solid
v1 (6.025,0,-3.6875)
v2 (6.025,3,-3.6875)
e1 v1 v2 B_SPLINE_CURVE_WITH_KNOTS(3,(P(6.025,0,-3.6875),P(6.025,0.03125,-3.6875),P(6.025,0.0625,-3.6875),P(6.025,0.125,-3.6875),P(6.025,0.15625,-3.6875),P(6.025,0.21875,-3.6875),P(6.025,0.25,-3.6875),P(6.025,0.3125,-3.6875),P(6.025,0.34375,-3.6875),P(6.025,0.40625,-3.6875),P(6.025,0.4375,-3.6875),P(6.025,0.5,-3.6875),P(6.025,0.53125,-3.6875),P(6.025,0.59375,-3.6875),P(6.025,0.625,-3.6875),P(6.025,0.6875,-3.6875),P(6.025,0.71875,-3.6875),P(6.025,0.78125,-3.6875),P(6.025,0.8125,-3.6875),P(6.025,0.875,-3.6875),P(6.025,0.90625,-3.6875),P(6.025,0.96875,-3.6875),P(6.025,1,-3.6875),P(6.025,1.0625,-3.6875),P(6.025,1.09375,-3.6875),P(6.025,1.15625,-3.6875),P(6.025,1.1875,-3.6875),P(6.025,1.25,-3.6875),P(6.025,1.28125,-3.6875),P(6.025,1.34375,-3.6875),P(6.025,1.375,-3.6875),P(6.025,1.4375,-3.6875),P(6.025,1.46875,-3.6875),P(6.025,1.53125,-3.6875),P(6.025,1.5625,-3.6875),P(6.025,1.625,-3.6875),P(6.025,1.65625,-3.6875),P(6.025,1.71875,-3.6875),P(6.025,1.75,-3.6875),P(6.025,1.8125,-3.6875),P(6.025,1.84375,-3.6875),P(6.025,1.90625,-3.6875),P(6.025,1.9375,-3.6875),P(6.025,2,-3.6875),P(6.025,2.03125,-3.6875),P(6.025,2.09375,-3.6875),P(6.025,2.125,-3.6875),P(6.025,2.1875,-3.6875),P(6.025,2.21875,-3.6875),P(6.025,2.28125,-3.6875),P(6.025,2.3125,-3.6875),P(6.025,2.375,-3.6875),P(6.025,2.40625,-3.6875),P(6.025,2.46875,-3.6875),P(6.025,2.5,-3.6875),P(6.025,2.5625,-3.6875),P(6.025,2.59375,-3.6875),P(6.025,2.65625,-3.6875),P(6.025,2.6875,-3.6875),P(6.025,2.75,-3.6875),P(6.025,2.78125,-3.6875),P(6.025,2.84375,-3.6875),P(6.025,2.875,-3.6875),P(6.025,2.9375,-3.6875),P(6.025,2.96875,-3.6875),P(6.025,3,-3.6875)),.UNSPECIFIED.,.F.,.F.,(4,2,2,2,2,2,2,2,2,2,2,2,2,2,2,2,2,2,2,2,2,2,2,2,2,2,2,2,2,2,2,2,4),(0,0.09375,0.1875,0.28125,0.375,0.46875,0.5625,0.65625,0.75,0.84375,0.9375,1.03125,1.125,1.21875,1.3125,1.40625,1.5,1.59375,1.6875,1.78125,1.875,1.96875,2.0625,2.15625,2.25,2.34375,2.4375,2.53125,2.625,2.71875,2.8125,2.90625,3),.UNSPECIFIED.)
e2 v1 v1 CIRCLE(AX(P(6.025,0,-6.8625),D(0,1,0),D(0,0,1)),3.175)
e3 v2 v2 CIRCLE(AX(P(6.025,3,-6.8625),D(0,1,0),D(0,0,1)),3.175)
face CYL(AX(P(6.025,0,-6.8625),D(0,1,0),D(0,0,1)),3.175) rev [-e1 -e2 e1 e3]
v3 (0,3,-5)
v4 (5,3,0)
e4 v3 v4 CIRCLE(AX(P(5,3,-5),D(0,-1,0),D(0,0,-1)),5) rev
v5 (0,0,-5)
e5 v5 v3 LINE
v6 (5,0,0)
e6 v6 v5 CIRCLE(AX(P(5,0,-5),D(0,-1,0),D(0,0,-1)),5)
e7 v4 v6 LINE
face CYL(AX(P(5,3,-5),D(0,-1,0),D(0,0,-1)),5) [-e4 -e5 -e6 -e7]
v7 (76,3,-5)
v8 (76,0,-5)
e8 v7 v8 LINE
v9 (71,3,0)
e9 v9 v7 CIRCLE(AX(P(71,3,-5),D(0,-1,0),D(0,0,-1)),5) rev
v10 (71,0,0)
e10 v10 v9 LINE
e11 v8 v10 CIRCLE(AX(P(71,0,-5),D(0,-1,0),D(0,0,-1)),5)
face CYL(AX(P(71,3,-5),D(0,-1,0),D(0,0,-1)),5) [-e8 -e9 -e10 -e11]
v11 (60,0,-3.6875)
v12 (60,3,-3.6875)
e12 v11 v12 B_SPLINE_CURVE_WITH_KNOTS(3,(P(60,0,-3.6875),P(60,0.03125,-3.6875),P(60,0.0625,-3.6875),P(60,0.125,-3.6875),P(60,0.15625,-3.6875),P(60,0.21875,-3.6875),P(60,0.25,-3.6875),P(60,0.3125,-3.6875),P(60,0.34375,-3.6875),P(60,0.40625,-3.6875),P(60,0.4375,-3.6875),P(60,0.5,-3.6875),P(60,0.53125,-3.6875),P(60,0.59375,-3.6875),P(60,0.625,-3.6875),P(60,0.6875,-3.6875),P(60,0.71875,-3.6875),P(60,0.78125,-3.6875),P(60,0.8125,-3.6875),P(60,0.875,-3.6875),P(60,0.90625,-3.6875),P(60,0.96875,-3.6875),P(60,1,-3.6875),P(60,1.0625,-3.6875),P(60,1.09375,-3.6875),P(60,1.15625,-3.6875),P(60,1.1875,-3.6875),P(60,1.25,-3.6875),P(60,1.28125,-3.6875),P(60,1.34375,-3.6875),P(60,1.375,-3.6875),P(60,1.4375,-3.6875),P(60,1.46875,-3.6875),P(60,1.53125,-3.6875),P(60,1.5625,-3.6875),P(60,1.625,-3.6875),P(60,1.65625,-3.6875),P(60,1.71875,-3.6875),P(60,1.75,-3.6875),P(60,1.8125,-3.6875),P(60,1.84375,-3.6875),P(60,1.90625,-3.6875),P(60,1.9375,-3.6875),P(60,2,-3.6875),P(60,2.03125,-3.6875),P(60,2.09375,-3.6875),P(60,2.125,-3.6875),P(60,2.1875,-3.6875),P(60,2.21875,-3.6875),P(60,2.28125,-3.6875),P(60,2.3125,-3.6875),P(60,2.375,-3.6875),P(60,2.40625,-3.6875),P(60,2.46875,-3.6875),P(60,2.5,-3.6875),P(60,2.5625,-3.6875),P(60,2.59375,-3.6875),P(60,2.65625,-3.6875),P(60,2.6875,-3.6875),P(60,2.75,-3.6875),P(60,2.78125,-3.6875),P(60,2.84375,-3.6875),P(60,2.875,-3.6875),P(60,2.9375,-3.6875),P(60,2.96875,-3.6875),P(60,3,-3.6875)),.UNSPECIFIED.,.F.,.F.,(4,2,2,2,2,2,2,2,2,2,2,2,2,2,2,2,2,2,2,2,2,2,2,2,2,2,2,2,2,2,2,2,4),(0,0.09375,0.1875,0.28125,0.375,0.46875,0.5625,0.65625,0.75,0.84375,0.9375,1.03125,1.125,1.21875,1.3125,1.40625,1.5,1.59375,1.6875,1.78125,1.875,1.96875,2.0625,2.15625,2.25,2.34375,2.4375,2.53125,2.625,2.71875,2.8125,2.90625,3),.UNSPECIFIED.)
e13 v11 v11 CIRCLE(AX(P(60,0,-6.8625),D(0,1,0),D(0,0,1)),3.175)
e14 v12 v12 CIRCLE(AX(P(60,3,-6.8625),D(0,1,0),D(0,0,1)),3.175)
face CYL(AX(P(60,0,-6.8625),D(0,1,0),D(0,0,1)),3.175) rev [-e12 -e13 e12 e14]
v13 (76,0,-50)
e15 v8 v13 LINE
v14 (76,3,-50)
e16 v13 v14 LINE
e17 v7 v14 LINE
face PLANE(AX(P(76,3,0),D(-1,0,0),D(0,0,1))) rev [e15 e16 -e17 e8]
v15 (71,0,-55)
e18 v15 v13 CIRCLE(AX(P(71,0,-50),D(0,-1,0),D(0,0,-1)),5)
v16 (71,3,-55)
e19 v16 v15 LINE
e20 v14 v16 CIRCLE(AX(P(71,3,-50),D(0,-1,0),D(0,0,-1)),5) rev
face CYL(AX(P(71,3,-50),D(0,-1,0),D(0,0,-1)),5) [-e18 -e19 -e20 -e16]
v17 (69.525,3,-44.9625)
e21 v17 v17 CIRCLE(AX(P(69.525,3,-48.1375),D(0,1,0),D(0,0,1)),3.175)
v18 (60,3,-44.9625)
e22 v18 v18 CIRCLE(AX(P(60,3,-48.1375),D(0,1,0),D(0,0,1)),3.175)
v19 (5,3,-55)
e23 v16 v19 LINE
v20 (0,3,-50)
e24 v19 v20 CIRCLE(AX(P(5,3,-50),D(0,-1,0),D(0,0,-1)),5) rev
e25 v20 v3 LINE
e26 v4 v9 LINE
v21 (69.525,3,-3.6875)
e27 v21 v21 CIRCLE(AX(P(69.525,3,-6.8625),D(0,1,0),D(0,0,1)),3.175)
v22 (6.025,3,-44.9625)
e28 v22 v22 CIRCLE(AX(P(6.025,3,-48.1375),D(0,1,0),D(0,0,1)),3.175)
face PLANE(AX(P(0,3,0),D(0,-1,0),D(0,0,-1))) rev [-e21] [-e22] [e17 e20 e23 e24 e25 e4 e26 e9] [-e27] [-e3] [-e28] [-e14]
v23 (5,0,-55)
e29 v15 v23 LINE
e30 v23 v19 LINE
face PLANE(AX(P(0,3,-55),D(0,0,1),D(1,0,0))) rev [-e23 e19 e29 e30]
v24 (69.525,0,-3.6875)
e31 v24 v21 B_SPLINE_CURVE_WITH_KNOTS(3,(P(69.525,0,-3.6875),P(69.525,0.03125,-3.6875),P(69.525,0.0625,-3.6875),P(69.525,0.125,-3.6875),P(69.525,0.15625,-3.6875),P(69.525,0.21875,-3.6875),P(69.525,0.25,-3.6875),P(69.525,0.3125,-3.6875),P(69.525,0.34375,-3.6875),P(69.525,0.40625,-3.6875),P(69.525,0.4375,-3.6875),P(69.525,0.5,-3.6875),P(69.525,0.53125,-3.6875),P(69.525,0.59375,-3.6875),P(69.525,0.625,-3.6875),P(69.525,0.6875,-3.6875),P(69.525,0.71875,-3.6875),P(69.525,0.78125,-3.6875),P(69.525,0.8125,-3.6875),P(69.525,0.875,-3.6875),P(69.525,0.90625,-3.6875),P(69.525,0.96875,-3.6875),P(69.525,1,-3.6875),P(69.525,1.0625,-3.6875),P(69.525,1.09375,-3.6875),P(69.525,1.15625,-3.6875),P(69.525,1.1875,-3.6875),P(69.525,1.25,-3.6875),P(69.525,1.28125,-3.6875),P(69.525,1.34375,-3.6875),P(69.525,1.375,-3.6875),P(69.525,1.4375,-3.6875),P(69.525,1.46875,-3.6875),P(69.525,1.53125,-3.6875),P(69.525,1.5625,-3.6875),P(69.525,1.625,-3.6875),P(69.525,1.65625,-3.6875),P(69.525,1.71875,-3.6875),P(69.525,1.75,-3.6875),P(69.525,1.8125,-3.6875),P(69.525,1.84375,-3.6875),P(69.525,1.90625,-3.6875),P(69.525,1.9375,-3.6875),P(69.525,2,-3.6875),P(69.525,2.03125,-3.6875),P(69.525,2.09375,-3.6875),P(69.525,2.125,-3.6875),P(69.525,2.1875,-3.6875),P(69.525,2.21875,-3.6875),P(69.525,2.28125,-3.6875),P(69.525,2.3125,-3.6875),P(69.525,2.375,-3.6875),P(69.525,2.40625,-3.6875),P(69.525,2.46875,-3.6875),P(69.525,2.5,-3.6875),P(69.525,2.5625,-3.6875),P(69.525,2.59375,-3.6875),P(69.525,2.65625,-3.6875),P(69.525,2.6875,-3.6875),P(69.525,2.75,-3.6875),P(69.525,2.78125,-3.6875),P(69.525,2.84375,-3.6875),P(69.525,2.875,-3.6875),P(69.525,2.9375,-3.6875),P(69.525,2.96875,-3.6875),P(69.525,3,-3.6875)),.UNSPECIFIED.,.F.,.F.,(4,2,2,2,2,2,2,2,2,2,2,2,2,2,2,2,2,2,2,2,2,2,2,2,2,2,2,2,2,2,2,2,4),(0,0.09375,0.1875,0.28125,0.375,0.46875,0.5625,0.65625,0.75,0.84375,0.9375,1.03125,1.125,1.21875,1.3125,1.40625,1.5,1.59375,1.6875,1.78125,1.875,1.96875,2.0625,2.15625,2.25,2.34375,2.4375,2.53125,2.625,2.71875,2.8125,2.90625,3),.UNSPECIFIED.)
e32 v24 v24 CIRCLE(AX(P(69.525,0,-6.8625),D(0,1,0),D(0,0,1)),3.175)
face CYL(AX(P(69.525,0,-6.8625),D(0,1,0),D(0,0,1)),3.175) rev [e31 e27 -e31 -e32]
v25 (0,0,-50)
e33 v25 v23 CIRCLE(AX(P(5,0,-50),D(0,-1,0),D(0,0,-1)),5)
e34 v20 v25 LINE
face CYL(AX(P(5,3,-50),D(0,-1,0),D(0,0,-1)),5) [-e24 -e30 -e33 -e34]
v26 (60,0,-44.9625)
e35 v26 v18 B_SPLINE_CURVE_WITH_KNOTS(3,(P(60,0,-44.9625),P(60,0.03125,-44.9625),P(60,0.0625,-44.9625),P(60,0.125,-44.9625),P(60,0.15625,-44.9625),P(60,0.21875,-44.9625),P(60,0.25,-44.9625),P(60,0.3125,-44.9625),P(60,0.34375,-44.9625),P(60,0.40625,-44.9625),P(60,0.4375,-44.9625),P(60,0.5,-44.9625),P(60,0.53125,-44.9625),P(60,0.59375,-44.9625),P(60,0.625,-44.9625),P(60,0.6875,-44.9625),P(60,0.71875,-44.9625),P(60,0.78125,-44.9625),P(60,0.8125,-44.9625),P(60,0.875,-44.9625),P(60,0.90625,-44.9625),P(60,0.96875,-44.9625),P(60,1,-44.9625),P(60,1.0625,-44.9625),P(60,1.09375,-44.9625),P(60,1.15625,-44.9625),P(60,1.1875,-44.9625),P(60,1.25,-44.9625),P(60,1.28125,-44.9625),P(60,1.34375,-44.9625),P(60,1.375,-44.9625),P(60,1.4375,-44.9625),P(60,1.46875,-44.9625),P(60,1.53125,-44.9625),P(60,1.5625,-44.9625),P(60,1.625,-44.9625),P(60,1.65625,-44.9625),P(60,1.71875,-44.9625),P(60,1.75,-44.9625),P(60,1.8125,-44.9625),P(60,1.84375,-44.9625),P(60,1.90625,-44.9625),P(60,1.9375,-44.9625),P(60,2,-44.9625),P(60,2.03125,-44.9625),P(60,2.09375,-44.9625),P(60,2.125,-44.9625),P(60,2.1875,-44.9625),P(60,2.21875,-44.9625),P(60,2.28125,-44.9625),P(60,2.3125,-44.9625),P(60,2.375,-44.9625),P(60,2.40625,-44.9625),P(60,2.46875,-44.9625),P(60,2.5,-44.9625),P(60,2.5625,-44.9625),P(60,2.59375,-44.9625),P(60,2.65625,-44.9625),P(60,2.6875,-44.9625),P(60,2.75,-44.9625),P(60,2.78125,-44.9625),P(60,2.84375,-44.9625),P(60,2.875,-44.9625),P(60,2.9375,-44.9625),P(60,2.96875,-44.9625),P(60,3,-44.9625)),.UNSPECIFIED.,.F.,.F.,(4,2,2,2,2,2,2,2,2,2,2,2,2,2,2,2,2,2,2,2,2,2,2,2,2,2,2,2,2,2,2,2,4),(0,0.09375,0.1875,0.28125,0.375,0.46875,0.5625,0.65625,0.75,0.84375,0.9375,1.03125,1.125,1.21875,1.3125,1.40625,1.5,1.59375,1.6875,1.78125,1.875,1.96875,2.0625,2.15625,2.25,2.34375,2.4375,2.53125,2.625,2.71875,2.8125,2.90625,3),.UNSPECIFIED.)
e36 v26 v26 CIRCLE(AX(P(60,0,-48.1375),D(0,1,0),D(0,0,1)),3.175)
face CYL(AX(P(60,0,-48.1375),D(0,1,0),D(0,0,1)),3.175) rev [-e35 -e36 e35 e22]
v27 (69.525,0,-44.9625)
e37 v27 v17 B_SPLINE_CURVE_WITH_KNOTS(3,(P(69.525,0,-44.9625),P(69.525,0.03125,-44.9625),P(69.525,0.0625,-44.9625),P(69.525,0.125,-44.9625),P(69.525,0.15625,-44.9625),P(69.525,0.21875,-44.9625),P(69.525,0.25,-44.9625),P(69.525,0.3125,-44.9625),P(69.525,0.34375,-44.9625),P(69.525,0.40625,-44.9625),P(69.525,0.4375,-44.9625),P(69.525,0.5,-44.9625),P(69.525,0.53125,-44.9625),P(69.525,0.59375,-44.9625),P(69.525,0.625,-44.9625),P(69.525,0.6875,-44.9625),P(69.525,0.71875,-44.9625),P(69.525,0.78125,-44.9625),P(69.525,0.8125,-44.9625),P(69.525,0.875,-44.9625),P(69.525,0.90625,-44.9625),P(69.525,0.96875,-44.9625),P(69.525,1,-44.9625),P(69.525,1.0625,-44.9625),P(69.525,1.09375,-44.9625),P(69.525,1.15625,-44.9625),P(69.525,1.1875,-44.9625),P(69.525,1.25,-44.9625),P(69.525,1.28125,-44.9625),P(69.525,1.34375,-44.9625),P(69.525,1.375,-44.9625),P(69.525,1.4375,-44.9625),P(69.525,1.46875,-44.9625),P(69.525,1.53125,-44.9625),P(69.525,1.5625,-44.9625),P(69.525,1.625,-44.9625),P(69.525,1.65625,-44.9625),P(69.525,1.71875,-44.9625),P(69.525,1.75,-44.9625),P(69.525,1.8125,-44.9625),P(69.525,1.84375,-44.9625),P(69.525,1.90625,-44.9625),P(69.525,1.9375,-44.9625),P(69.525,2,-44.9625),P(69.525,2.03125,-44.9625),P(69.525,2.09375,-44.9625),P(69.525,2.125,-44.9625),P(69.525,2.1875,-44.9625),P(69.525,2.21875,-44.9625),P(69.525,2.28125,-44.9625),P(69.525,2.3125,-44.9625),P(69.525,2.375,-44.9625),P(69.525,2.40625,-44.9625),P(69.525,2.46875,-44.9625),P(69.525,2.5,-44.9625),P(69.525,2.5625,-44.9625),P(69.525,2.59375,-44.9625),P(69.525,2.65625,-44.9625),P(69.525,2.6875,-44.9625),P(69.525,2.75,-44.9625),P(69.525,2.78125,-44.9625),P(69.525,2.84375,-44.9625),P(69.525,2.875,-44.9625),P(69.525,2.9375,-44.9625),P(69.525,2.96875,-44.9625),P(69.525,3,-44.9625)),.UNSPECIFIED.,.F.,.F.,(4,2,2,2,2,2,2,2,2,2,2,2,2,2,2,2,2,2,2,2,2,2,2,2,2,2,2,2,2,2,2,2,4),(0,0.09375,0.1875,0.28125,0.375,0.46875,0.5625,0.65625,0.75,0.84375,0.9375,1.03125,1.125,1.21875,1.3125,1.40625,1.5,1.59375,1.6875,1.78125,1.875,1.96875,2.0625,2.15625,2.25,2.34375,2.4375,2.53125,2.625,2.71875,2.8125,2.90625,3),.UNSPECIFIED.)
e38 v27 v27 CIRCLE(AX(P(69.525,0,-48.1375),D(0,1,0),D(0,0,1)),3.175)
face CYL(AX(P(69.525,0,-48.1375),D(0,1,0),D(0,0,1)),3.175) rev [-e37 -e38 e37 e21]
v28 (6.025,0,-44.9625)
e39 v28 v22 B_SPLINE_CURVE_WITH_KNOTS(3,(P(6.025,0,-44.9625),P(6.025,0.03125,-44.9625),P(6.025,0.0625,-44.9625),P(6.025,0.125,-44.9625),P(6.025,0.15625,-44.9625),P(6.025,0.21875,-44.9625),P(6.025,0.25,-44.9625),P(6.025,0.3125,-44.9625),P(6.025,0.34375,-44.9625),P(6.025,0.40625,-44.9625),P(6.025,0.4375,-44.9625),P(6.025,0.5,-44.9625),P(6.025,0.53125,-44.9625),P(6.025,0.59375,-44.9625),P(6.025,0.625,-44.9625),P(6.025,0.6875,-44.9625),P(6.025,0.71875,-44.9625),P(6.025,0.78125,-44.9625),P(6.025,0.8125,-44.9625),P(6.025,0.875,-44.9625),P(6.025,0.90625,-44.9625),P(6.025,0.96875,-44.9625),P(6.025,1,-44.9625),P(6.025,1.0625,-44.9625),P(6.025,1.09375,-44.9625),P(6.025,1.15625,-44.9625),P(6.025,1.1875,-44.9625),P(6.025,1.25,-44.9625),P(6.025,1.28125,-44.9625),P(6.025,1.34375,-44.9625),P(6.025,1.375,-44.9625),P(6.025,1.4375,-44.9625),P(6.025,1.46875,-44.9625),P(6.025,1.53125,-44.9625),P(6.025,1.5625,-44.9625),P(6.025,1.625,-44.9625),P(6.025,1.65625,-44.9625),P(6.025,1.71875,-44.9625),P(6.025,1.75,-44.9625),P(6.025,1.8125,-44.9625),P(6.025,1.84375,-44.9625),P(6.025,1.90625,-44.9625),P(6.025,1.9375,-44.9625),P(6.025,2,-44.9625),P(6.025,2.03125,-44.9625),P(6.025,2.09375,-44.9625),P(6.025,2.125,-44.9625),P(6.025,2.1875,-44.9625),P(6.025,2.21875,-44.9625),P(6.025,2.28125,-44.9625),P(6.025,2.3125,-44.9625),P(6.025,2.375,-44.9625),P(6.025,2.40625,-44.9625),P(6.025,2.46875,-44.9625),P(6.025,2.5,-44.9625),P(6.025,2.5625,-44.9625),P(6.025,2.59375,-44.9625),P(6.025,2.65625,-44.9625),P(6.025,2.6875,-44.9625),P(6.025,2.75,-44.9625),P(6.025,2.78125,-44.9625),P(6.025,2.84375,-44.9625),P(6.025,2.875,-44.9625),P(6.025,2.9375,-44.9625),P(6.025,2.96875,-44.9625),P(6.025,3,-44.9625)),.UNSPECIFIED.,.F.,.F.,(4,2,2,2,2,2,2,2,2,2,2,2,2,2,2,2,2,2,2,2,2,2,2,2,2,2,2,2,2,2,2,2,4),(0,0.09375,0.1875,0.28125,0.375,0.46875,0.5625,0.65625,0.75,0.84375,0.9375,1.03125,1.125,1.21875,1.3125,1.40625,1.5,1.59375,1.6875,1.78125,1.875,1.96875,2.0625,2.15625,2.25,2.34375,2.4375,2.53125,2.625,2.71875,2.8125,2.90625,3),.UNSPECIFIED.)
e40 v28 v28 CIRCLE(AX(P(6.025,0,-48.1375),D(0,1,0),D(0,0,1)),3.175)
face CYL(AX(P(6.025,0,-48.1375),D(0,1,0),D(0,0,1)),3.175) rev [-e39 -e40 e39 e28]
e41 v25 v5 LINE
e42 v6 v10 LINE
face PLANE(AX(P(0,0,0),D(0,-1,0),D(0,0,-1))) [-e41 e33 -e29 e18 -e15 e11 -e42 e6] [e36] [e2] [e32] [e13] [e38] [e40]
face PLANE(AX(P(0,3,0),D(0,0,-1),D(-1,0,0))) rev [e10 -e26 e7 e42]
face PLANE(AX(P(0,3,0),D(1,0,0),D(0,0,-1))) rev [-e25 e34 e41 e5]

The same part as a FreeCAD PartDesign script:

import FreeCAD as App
import Part
import Sketcher
from FreeCAD import Vector


def edges_at(feature, points):
    """Names of the edges that pass closest to the given points."""
    edges = feature.Shape.Edges
    near = lambda p: min(range(len(edges)), key=lambda i: edges[i].distToShape(Part.Vertex(*p))[0])
    return sorted({f"Edge{near(p) + 1}" for p in points})


def add_polygon(sketch, points):
    """Adds a closed chain of lines whose ends are joined by coincident constraints."""
    first, n = sketch.GeometryCount, len(points)
    for a, b in zip(points, points[1:] + points[:1]):
        sketch.addGeometry(Part.LineSegment(App.Vector(*a, 0), App.Vector(*b, 0)), False)
    for i in range(n):
        sketch.addConstraint(Sketcher.Constraint("Coincident", first + i, 2, first + (i + 1) % n, 1))

doc = App.newDocument("Part")
body = doc.addObject("PartDesign::Body", "Body")

# Sketch on XZ plane
sketch1 = body.newObject("Sketcher::SketchObject", "Sketch")
sketch1.AttachmentSupport = (doc.getObject("XZ_Plane"), [""])
sketch1.MapMode = "FlatFace"
add_polygon(sketch1, [(0, -55), (0, 0), (76, 0), (76, -55)])  # lines 0-3
sketch1.addConstraint([
    Sketcher.Constraint("Vertical", 0),
    Sketcher.Constraint("Horizontal", 1),
    Sketcher.Constraint("Vertical", 2),
    Sketcher.Constraint("Horizontal", 3),
    Sketcher.Constraint("Coincident", 0, 2, -1, 1),
    Sketcher.Constraint("DistanceX", 1, 1, 1, 2, 76.0),
    Sketcher.Constraint("DistanceY", 0, 1, 0, 2, 55.0),
])
pad1 = body.newObject("PartDesign::Pad", "Pad")
pad1.Profile = sketch1
pad1.Length = 3
pad1.Reversed = True
doc.recompute()

fillet = body.newObject("PartDesign::Fillet", "Fillet")
fillet.Base = (pad1, edges_at(pad1, [
    (0, 1.5, -55),
    (76, 1.5, -55),
    (76, 1.5, 0),
    (0, 1.5, 0),
]))
fillet.Radius = 5

# Sketch on XZ plane
sketch2 = body.newObject("Sketcher::SketchObject", "Sketch001")
sketch2.AttachmentSupport = (doc.getObject("XZ_Plane"), [""])
sketch2.MapMode = "FlatFace"
sketch2.AttachmentOffset = App.Placement(Vector(0, 0, -3), App.Rotation())
sketch2.addGeometry([
    Part.Circle(Vector(6, -48.1, 0), Vector(0, 0, 1), 3.2),  # 0
    Part.Circle(Vector(60, -48.1, 0), Vector(0, 0, 1), 3.2),  # 1
    Part.Circle(Vector(69.5, -48.1, 0), Vector(0, 0, 1), 3.2),  # 2
    Part.Circle(Vector(69.5, -6.9, 0), Vector(0, 0, 1), 3.2),  # 3
    Part.Circle(Vector(60, -6.9, 0), Vector(0, 0, 1), 3.2),  # 4
    Part.Circle(Vector(6, -6.9, 0), Vector(0, 0, 1), 3.2),  # 5
], False)
sketch2.addConstraint([
    Sketcher.Constraint("Equal", 0, 1),
    Sketcher.Constraint("Equal", 1, 2),
    Sketcher.Constraint("Equal", 2, 3),
    Sketcher.Constraint("Equal", 3, 4),
    Sketcher.Constraint("Equal", 4, 5),
    Sketcher.Constraint("Horizontal", 0, 3, 1, 3),
    Sketcher.Constraint("Horizontal", 1, 3, 2, 3),
    Sketcher.Constraint("Horizontal", 3, 3, 4, 3),
    Sketcher.Constraint("Horizontal", 4, 3, 5, 3),
    Sketcher.Constraint("Vertical", 2, 3, 3, 3),
    Sketcher.Constraint("Vertical", 1, 3, 4, 3),
    Sketcher.Constraint("Vertical", 0, 3, 5, 3),
    Sketcher.Constraint("Diameter", 0, 6.35),
    Sketcher.Constraint("DistanceX", -1, 1, 1, 3, 60.0),
    Sketcher.Constraint("DistanceX", 0, 3, 2, 3, 63.5),
    Sketcher.Constraint("DistanceX", -1, 1, 0, 3, 6.025),
    Sketcher.Constraint("DistanceY", 2, 3, 3, 3, 41.275),
    Sketcher.Constraint("DistanceY", 0, 3, -1, 1, 48.1375),
])
pocket1 = body.newObject("PartDesign::Pocket", "Pocket")
pocket1.Profile = sketch2
pocket1.Type = "ThroughAll"
pocket1.Reversed = True

doc.recompute()
